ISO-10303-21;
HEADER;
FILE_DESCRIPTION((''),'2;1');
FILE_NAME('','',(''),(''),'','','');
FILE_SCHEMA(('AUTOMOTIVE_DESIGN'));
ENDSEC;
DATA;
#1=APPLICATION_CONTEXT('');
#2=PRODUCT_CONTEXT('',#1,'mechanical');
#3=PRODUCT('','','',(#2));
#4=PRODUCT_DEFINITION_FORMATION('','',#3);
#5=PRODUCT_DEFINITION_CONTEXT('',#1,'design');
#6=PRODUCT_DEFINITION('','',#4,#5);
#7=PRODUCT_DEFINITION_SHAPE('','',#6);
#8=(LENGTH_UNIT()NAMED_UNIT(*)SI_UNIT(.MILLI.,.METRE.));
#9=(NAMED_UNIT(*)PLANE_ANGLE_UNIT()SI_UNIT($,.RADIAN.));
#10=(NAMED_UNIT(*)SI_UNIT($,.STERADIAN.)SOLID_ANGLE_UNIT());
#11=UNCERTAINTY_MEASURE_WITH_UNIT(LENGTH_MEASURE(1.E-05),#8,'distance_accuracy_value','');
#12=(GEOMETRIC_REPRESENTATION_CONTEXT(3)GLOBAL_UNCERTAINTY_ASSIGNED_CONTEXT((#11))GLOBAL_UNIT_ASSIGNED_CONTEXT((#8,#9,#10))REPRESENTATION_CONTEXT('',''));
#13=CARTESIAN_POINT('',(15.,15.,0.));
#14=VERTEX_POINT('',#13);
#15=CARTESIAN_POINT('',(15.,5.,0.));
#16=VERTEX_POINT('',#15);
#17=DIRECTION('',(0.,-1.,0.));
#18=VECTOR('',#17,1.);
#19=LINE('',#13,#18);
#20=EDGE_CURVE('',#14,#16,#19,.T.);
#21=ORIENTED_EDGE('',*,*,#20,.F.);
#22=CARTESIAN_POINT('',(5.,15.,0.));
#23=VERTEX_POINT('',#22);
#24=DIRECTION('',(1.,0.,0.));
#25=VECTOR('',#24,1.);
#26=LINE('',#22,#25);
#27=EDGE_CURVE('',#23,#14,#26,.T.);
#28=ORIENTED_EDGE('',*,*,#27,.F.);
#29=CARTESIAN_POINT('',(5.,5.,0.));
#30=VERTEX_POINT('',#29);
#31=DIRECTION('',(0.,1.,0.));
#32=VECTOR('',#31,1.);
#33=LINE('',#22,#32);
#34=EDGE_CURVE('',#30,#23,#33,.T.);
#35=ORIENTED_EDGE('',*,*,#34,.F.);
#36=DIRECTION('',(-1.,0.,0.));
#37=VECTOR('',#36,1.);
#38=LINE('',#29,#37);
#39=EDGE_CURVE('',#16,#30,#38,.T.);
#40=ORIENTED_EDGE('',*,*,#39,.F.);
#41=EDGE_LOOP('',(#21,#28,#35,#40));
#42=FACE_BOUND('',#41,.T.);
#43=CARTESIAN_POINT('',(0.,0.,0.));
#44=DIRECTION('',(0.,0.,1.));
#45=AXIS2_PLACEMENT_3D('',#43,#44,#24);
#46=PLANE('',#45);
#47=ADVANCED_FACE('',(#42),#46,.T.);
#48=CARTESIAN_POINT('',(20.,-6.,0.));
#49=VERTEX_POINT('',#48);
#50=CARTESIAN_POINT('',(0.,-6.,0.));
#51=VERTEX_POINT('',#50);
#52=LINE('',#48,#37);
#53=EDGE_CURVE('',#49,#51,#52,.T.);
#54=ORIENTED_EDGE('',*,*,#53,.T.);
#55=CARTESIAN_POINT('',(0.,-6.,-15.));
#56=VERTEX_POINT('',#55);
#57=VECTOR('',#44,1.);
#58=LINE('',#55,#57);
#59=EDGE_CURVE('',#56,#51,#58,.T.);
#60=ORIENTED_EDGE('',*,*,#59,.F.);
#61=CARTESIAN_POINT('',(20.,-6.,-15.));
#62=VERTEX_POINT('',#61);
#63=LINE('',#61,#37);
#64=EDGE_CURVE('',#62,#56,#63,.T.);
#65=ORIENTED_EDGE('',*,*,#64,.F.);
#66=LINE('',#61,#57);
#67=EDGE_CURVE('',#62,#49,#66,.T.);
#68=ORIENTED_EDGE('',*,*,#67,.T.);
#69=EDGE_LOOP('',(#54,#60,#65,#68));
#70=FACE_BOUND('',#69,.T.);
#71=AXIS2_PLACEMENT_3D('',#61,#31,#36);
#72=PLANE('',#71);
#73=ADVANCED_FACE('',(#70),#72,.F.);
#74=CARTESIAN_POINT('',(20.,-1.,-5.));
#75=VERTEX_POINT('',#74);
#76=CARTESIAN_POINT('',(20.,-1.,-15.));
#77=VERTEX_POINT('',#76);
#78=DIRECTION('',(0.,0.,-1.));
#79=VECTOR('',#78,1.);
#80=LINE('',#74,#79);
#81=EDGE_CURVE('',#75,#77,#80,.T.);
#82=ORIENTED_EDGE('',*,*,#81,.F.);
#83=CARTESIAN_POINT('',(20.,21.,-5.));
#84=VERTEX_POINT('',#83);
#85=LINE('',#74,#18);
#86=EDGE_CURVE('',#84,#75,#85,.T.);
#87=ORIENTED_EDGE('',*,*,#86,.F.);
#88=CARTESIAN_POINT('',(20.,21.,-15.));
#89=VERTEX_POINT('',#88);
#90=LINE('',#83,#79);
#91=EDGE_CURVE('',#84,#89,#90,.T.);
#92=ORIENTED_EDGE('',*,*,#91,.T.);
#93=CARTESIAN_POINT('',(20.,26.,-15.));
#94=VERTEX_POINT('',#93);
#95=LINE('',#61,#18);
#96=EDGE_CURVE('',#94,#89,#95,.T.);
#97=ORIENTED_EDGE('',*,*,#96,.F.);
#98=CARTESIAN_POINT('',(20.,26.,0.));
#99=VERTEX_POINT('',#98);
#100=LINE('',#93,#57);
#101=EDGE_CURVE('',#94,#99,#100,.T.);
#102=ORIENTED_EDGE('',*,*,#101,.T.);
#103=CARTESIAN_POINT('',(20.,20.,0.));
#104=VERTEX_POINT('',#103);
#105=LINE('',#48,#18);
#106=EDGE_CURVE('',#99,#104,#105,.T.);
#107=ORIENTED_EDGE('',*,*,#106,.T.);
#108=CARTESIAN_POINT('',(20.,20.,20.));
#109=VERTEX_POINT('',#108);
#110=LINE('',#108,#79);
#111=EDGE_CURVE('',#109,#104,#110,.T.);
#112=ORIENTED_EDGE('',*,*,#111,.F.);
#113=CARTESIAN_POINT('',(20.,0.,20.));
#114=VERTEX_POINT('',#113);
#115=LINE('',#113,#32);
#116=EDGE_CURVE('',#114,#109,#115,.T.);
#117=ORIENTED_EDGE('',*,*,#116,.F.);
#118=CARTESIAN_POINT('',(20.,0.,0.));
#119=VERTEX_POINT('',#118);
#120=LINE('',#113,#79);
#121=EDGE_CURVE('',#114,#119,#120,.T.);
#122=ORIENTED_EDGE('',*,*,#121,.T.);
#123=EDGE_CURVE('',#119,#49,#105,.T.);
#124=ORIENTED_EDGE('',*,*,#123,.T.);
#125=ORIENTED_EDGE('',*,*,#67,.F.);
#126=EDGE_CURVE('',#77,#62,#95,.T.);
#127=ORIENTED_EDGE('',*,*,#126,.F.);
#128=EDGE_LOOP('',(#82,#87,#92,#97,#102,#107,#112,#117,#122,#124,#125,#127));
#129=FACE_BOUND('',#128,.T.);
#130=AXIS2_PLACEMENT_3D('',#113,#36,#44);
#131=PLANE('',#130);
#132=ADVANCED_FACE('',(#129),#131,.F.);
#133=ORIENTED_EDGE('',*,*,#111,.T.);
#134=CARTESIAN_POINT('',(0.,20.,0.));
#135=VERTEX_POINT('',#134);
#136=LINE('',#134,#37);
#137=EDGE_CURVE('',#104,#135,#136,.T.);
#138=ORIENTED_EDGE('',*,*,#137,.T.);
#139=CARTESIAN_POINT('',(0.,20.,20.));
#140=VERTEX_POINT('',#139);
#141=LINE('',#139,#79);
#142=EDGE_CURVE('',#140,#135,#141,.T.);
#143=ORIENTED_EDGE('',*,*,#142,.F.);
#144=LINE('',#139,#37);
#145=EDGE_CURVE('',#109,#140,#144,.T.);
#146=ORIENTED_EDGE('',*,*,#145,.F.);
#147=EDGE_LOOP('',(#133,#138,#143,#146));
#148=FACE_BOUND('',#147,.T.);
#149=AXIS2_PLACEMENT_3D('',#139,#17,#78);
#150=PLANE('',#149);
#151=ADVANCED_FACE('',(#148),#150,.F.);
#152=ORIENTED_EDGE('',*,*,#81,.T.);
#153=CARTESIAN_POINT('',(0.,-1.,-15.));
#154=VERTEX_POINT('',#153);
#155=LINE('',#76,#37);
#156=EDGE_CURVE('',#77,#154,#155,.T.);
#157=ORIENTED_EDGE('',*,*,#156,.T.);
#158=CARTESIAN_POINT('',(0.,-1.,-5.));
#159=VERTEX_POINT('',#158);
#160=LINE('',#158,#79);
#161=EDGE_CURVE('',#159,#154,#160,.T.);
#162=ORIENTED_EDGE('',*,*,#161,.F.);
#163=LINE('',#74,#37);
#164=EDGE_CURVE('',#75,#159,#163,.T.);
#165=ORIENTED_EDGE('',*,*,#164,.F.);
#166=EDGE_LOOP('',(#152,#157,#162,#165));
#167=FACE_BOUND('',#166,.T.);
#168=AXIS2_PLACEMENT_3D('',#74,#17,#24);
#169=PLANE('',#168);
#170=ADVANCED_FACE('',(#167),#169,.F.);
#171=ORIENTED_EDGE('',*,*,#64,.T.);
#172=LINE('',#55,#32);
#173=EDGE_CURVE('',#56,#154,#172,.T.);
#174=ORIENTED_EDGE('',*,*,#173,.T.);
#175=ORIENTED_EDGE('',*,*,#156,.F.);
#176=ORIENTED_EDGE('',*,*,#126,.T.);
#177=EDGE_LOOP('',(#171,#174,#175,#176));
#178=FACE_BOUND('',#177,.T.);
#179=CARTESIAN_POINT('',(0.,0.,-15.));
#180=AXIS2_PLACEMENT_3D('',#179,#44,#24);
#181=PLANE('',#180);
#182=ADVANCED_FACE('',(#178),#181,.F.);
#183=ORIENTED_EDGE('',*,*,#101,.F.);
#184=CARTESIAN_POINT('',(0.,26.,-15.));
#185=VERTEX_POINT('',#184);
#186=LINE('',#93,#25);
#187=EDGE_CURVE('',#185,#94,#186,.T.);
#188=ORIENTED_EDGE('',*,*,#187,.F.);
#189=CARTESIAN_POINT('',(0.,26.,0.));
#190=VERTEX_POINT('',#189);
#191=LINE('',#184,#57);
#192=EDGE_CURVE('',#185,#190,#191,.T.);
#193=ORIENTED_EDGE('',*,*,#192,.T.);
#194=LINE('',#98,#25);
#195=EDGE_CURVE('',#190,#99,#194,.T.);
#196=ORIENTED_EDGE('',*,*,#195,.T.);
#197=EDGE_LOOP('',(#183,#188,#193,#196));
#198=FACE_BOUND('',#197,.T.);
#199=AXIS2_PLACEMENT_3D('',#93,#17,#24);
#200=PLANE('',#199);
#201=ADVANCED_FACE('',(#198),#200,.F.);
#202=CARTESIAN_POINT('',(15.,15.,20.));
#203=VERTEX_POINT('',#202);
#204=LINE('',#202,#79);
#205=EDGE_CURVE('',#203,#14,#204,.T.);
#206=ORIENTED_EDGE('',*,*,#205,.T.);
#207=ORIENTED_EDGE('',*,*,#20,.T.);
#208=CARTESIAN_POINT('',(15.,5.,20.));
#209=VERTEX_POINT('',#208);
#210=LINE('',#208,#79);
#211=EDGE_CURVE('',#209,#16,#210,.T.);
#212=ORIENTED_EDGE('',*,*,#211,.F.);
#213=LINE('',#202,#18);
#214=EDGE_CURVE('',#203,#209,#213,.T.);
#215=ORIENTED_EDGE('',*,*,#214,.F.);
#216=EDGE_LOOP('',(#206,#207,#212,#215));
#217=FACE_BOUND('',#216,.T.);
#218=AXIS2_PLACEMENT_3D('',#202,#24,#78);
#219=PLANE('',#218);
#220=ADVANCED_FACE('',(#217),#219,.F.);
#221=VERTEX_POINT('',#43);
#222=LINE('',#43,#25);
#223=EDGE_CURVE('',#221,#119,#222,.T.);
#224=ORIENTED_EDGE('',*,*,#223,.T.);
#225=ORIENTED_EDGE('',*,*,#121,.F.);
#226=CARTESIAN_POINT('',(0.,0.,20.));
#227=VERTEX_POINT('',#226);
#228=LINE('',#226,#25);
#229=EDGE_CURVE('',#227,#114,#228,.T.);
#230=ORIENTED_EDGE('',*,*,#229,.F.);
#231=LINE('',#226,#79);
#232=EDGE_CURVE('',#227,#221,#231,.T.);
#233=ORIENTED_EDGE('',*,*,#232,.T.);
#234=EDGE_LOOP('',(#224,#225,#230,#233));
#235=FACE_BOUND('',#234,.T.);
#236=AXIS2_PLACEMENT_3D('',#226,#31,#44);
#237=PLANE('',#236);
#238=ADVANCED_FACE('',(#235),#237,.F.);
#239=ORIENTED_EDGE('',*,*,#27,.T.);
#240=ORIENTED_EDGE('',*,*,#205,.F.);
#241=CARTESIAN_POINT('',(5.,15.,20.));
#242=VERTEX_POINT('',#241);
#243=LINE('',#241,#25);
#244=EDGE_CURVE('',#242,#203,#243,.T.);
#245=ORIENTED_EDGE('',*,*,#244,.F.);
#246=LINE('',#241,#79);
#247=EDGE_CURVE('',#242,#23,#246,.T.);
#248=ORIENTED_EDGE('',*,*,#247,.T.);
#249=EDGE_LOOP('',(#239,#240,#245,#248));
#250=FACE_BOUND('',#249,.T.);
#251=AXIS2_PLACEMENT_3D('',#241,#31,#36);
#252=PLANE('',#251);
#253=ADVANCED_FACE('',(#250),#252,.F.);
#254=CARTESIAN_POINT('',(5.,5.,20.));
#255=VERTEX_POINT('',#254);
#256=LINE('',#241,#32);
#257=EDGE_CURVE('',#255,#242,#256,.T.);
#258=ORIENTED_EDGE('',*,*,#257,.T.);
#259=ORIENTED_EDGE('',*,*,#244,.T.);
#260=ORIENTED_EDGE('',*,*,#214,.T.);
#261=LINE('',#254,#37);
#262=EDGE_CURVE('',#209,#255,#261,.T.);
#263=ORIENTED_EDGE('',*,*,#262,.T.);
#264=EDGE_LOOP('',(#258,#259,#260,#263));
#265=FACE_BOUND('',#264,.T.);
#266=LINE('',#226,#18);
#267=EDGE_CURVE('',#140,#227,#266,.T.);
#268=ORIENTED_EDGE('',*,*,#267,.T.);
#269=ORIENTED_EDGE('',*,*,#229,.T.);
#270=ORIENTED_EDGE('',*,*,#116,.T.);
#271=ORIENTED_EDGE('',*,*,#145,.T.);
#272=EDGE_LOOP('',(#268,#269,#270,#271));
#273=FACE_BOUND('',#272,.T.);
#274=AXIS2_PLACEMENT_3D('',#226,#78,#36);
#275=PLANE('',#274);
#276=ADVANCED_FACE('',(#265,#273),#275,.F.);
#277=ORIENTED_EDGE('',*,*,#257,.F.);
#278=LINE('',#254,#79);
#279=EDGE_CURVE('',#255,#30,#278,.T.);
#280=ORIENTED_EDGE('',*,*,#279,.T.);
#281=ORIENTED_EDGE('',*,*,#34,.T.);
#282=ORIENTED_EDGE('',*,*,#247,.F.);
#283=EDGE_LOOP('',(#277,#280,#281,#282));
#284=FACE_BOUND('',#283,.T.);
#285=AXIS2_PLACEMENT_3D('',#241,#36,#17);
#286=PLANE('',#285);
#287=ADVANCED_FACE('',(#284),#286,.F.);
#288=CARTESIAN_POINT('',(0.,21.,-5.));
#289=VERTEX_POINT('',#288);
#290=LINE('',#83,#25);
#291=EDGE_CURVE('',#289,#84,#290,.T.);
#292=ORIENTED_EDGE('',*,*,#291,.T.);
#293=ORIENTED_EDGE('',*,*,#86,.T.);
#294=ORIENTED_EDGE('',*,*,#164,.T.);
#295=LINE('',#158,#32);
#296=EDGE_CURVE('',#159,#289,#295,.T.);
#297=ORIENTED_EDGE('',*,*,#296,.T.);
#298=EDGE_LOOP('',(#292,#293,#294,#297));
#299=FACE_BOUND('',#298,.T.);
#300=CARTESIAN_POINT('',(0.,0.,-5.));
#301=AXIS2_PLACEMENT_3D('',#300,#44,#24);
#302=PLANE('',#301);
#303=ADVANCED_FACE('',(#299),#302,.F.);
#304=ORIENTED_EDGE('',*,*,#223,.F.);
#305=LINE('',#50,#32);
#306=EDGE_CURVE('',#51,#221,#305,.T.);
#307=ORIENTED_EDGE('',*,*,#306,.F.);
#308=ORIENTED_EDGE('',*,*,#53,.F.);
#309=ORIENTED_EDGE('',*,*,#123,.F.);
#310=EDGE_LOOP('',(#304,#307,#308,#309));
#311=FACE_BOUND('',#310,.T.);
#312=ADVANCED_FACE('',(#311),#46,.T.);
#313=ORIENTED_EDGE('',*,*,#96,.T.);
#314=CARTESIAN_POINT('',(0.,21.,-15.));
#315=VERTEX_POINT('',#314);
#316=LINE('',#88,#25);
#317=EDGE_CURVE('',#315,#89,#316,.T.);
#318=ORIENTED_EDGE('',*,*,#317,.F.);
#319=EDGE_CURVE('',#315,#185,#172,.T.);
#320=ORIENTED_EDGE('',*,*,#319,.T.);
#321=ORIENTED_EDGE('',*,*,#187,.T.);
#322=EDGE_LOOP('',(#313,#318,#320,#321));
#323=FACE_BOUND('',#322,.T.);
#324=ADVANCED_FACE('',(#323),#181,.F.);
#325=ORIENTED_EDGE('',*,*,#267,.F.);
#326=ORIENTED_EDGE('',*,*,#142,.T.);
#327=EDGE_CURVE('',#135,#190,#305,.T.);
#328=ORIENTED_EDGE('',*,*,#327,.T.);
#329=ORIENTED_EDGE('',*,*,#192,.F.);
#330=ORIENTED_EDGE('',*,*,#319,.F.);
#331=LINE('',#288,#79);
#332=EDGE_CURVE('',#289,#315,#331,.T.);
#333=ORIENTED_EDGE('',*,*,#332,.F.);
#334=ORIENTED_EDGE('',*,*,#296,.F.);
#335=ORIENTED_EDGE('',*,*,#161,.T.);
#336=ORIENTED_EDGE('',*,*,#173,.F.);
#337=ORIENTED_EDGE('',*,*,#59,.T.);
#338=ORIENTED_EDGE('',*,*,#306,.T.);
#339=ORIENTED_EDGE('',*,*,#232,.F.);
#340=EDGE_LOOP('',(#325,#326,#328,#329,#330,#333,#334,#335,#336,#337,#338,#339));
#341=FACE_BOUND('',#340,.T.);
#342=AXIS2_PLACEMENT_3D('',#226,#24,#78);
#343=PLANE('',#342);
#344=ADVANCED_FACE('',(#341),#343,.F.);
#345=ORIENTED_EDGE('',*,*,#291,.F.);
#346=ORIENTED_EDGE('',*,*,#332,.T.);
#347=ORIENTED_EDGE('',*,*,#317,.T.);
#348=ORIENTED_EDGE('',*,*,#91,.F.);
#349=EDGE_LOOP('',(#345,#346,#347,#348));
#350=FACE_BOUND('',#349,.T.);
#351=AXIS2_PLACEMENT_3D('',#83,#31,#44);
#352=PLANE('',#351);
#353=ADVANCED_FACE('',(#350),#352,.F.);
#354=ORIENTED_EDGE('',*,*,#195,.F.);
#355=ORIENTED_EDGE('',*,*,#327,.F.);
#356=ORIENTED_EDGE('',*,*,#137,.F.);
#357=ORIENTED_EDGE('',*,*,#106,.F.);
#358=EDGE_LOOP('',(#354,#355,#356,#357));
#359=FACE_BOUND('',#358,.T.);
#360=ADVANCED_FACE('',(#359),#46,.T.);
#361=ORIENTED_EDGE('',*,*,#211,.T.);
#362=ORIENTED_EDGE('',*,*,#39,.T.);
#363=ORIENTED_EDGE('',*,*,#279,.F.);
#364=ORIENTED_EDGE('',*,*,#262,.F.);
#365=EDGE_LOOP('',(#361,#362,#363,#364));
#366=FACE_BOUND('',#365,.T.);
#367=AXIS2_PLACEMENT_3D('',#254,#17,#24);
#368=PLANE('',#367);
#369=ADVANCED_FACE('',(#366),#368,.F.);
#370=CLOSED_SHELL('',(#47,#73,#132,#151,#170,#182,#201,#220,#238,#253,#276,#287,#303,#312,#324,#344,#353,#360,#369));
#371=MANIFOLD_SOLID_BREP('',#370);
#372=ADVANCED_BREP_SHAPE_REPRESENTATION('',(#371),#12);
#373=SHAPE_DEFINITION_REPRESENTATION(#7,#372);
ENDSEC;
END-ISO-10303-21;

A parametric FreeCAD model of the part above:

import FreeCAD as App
import Part
import Sketcher
Q = App.Units.Quantity

doc = App.newDocument("Part")
body = doc.addObject("PartDesign::Body", "Body")

# Sketch on XY plane
sketch1 = doc.addObject("Sketcher::SketchObject", "Sketch")
body.addObject(sketch1)
sketch1.AttachmentSupport = (doc.XY_Plane, [""])
sketch1.MapMode = "FlatFace"
sketch1.addGeometry(Part.LineSegment(App.Vector(0, 20, 0), App.Vector(0, 0, 0)), False)
sketch1.addGeometry(Part.LineSegment(App.Vector(0, 0, 0), App.Vector(20, 0, 0)), False)
sketch1.addGeometry(Part.LineSegment(App.Vector(20, 0, 0), App.Vector(20, 20, 0)), False)
sketch1.addGeometry(Part.LineSegment(App.Vector(20, 20, 0), App.Vector(0, 20, 0)), False)
sketch1.addConstraint(Sketcher.Constraint("Coincident", 0, 2, 1, 1))
sketch1.addConstraint(Sketcher.Constraint("Coincident", 1, 2, 2, 1))
sketch1.addConstraint(Sketcher.Constraint("Coincident", 2, 2, 3, 1))
sketch1.addConstraint(Sketcher.Constraint("Coincident", 3, 2, 0, 1))
sketch1.addConstraint(Sketcher.Constraint("Vertical", 0))
sketch1.addConstraint(Sketcher.Constraint("Horizontal", 1))
sketch1.addConstraint(Sketcher.Constraint("Vertical", 2))
sketch1.addConstraint(Sketcher.Constraint("Horizontal", 3))
sketch1.addConstraint(Sketcher.Constraint("Coincident", 0, 2, -1, 1))
sketch1.addConstraint(Sketcher.Constraint("Equal", 3, 0))
sketch1.addConstraint(Sketcher.Constraint("DistanceX", 1, 1, 1, 2, Q("20 mm")))
pad1 = doc.addObject("PartDesign::Pad", "Pad")
body.addObject(pad1)
pad1.Profile = sketch1
pad1.Length = 20

# Sketch on XY plane
sketch2 = doc.addObject("Sketcher::SketchObject", "Sketch001")
body.addObject(sketch2)
sketch2.AttachmentSupport = (doc.XY_Plane, [""])
sketch2.MapMode = "FlatFace"
sketch2.addGeometry(Part.LineSegment(App.Vector(15, 15, 0), App.Vector(15, 5, 0)), False)
sketch2.addGeometry(Part.LineSegment(App.Vector(15, 5, 0), App.Vector(5, 5, 0)), False)
sketch2.addGeometry(Part.LineSegment(App.Vector(5, 5, 0), App.Vector(5, 15, 0)), False)
sketch2.addGeometry(Part.LineSegment(App.Vector(5, 15, 0), App.Vector(15, 15, 0)), False)
sketch2.addConstraint(Sketcher.Constraint("Coincident", 0, 2, 1, 1))
sketch2.addConstraint(Sketcher.Constraint("Coincident", 1, 2, 2, 1))
sketch2.addConstraint(Sketcher.Constraint("Coincident", 2, 2, 3, 1))
sketch2.addConstraint(Sketcher.Constraint("Coincident", 3, 2, 0, 1))
sketch2.addConstraint(Sketcher.Constraint("Vertical", 0))
sketch2.addConstraint(Sketcher.Constraint("Horizontal", 1))
sketch2.addConstraint(Sketcher.Constraint("Vertical", 2))
sketch2.addConstraint(Sketcher.Constraint("Horizontal", 3))
sketch2.addConstraint(Sketcher.Constraint("Equal", 3, 0))
sketch2.addConstraint(Sketcher.Constraint("DistanceX", 1, 2, 1, 1, Q("10 mm")))
sketch2.addConstraint(Sketcher.Constraint("DistanceX", -1, 1, 0, 2, Q("15 mm")))
sketch2.addConstraint(Sketcher.Constraint("DistanceY", -1, 1, 0, 2, Q("5 mm")))
pocket1 = doc.addObject("PartDesign::Pocket", "Pocket")
body.addObject(pocket1)
pocket1.Profile = sketch2
pocket1.Length = 20
pocket1.Reversed = True

# Sketch on XY plane
sketch3 = doc.addObject("Sketcher::SketchObject", "Sketch002")
body.addObject(sketch3)
sketch3.AttachmentSupport = (doc.XY_Plane, [""])
sketch3.MapMode = "FlatFace"
sketch3.addGeometry(Part.LineSegment(App.Vector(20, 26, 0), App.Vector(20, -6, 0)), False)
sketch3.addGeometry(Part.LineSegment(App.Vector(20, -6, 0), App.Vector(0, -6, 0)), False)
sketch3.addGeometry(Part.LineSegment(App.Vector(0, -6, 0), App.Vector(0, 26, 0)), False)
sketch3.addGeometry(Part.LineSegment(App.Vector(0, 26, 0), App.Vector(20, 26, 0)), False)
sketch3.addConstraint(Sketcher.Constraint("Coincident", 0, 2, 1, 1))
sketch3.addConstraint(Sketcher.Constraint("Coincident", 1, 2, 2, 1))
sketch3.addConstraint(Sketcher.Constraint("Coincident", 2, 2, 3, 1))
sketch3.addConstraint(Sketcher.Constraint("Coincident", 3, 2, 0, 1))
sketch3.addConstraint(Sketcher.Constraint("Vertical", 0))
sketch3.addConstraint(Sketcher.Constraint("Horizontal", 1))
sketch3.addConstraint(Sketcher.Constraint("Vertical", 2))
sketch3.addConstraint(Sketcher.Constraint("Horizontal", 3))
sketch3.addConstraint(Sketcher.Constraint("PointOnObject", 1, 2, -2))
sketch3.addConstraint(Sketcher.Constraint("DistanceX", 1, 2, 1, 1, Q("20 mm")))
sketch3.addConstraint(Sketcher.Constraint("DistanceY", 0, 2, 0, 1, Q("32 mm")))
sketch3.addConstraint(Sketcher.Constraint("DistanceY", 0, 2, -1, 1, Q("6 mm")))
pad2 = doc.addObject("PartDesign::Pad", "Pad001")
body.addObject(pad2)
pad2.Profile = sketch3
pad2.Length = 15
pad2.Reversed = True

# Sketch on XY plane
sketch4 = doc.addObject("Sketcher::SketchObject", "Sketch003")
body.addObject(sketch4)
sketch4.AttachmentSupport = (doc.XY_Plane, [""])
sketch4.MapMode = "FlatFace"
sketch4.AttachmentOffset = App.Placement(App.Vector(0, 0, -15), App.Rotation())
sketch4.addGeometry(Part.LineSegment(App.Vector(20, 21, 0), App.Vector(20, -1, 0)), False)
sketch4.addGeometry(Part.LineSegment(App.Vector(20, -1, 0), App.Vector(0, -1, 0)), False)
sketch4.addGeometry(Part.LineSegment(App.Vector(0, -1, 0), App.Vector(0, 21, 0)), False)
sketch4.addGeometry(Part.LineSegment(App.Vector(0, 21, 0), App.Vector(20, 21, 0)), False)
sketch4.addConstraint(Sketcher.Constraint("Coincident", 0, 2, 1, 1))
sketch4.addConstraint(Sketcher.Constraint("Coincident", 1, 2, 2, 1))
sketch4.addConstraint(Sketcher.Constraint("Coincident", 2, 2, 3, 1))
sketch4.addConstraint(Sketcher.Constraint("Coincident", 3, 2, 0, 1))
sketch4.addConstraint(Sketcher.Constraint("Vertical", 0))
sketch4.addConstraint(Sketcher.Constraint("Horizontal", 1))
sketch4.addConstraint(Sketcher.Constraint("Vertical", 2))
sketch4.addConstraint(Sketcher.Constraint("Horizontal", 3))
sketch4.addConstraint(Sketcher.Constraint("PointOnObject", 1, 2, -2))
sketch4.addConstraint(Sketcher.Constraint("DistanceX", 1, 2, 1, 1, Q("20 mm")))
sketch4.addConstraint(Sketcher.Constraint("DistanceY", 0, 2, 0, 1, Q("22 mm")))
sketch4.addConstraint(Sketcher.Constraint("DistanceY", 0, 2, -1, 1, Q("1 mm")))
pocket2 = doc.addObject("PartDesign::Pocket", "Pocket001")
body.addObject(pocket2)
pocket2.Profile = sketch4
pocket2.Length = 10
pocket2.Reversed = True

doc.recompute()
